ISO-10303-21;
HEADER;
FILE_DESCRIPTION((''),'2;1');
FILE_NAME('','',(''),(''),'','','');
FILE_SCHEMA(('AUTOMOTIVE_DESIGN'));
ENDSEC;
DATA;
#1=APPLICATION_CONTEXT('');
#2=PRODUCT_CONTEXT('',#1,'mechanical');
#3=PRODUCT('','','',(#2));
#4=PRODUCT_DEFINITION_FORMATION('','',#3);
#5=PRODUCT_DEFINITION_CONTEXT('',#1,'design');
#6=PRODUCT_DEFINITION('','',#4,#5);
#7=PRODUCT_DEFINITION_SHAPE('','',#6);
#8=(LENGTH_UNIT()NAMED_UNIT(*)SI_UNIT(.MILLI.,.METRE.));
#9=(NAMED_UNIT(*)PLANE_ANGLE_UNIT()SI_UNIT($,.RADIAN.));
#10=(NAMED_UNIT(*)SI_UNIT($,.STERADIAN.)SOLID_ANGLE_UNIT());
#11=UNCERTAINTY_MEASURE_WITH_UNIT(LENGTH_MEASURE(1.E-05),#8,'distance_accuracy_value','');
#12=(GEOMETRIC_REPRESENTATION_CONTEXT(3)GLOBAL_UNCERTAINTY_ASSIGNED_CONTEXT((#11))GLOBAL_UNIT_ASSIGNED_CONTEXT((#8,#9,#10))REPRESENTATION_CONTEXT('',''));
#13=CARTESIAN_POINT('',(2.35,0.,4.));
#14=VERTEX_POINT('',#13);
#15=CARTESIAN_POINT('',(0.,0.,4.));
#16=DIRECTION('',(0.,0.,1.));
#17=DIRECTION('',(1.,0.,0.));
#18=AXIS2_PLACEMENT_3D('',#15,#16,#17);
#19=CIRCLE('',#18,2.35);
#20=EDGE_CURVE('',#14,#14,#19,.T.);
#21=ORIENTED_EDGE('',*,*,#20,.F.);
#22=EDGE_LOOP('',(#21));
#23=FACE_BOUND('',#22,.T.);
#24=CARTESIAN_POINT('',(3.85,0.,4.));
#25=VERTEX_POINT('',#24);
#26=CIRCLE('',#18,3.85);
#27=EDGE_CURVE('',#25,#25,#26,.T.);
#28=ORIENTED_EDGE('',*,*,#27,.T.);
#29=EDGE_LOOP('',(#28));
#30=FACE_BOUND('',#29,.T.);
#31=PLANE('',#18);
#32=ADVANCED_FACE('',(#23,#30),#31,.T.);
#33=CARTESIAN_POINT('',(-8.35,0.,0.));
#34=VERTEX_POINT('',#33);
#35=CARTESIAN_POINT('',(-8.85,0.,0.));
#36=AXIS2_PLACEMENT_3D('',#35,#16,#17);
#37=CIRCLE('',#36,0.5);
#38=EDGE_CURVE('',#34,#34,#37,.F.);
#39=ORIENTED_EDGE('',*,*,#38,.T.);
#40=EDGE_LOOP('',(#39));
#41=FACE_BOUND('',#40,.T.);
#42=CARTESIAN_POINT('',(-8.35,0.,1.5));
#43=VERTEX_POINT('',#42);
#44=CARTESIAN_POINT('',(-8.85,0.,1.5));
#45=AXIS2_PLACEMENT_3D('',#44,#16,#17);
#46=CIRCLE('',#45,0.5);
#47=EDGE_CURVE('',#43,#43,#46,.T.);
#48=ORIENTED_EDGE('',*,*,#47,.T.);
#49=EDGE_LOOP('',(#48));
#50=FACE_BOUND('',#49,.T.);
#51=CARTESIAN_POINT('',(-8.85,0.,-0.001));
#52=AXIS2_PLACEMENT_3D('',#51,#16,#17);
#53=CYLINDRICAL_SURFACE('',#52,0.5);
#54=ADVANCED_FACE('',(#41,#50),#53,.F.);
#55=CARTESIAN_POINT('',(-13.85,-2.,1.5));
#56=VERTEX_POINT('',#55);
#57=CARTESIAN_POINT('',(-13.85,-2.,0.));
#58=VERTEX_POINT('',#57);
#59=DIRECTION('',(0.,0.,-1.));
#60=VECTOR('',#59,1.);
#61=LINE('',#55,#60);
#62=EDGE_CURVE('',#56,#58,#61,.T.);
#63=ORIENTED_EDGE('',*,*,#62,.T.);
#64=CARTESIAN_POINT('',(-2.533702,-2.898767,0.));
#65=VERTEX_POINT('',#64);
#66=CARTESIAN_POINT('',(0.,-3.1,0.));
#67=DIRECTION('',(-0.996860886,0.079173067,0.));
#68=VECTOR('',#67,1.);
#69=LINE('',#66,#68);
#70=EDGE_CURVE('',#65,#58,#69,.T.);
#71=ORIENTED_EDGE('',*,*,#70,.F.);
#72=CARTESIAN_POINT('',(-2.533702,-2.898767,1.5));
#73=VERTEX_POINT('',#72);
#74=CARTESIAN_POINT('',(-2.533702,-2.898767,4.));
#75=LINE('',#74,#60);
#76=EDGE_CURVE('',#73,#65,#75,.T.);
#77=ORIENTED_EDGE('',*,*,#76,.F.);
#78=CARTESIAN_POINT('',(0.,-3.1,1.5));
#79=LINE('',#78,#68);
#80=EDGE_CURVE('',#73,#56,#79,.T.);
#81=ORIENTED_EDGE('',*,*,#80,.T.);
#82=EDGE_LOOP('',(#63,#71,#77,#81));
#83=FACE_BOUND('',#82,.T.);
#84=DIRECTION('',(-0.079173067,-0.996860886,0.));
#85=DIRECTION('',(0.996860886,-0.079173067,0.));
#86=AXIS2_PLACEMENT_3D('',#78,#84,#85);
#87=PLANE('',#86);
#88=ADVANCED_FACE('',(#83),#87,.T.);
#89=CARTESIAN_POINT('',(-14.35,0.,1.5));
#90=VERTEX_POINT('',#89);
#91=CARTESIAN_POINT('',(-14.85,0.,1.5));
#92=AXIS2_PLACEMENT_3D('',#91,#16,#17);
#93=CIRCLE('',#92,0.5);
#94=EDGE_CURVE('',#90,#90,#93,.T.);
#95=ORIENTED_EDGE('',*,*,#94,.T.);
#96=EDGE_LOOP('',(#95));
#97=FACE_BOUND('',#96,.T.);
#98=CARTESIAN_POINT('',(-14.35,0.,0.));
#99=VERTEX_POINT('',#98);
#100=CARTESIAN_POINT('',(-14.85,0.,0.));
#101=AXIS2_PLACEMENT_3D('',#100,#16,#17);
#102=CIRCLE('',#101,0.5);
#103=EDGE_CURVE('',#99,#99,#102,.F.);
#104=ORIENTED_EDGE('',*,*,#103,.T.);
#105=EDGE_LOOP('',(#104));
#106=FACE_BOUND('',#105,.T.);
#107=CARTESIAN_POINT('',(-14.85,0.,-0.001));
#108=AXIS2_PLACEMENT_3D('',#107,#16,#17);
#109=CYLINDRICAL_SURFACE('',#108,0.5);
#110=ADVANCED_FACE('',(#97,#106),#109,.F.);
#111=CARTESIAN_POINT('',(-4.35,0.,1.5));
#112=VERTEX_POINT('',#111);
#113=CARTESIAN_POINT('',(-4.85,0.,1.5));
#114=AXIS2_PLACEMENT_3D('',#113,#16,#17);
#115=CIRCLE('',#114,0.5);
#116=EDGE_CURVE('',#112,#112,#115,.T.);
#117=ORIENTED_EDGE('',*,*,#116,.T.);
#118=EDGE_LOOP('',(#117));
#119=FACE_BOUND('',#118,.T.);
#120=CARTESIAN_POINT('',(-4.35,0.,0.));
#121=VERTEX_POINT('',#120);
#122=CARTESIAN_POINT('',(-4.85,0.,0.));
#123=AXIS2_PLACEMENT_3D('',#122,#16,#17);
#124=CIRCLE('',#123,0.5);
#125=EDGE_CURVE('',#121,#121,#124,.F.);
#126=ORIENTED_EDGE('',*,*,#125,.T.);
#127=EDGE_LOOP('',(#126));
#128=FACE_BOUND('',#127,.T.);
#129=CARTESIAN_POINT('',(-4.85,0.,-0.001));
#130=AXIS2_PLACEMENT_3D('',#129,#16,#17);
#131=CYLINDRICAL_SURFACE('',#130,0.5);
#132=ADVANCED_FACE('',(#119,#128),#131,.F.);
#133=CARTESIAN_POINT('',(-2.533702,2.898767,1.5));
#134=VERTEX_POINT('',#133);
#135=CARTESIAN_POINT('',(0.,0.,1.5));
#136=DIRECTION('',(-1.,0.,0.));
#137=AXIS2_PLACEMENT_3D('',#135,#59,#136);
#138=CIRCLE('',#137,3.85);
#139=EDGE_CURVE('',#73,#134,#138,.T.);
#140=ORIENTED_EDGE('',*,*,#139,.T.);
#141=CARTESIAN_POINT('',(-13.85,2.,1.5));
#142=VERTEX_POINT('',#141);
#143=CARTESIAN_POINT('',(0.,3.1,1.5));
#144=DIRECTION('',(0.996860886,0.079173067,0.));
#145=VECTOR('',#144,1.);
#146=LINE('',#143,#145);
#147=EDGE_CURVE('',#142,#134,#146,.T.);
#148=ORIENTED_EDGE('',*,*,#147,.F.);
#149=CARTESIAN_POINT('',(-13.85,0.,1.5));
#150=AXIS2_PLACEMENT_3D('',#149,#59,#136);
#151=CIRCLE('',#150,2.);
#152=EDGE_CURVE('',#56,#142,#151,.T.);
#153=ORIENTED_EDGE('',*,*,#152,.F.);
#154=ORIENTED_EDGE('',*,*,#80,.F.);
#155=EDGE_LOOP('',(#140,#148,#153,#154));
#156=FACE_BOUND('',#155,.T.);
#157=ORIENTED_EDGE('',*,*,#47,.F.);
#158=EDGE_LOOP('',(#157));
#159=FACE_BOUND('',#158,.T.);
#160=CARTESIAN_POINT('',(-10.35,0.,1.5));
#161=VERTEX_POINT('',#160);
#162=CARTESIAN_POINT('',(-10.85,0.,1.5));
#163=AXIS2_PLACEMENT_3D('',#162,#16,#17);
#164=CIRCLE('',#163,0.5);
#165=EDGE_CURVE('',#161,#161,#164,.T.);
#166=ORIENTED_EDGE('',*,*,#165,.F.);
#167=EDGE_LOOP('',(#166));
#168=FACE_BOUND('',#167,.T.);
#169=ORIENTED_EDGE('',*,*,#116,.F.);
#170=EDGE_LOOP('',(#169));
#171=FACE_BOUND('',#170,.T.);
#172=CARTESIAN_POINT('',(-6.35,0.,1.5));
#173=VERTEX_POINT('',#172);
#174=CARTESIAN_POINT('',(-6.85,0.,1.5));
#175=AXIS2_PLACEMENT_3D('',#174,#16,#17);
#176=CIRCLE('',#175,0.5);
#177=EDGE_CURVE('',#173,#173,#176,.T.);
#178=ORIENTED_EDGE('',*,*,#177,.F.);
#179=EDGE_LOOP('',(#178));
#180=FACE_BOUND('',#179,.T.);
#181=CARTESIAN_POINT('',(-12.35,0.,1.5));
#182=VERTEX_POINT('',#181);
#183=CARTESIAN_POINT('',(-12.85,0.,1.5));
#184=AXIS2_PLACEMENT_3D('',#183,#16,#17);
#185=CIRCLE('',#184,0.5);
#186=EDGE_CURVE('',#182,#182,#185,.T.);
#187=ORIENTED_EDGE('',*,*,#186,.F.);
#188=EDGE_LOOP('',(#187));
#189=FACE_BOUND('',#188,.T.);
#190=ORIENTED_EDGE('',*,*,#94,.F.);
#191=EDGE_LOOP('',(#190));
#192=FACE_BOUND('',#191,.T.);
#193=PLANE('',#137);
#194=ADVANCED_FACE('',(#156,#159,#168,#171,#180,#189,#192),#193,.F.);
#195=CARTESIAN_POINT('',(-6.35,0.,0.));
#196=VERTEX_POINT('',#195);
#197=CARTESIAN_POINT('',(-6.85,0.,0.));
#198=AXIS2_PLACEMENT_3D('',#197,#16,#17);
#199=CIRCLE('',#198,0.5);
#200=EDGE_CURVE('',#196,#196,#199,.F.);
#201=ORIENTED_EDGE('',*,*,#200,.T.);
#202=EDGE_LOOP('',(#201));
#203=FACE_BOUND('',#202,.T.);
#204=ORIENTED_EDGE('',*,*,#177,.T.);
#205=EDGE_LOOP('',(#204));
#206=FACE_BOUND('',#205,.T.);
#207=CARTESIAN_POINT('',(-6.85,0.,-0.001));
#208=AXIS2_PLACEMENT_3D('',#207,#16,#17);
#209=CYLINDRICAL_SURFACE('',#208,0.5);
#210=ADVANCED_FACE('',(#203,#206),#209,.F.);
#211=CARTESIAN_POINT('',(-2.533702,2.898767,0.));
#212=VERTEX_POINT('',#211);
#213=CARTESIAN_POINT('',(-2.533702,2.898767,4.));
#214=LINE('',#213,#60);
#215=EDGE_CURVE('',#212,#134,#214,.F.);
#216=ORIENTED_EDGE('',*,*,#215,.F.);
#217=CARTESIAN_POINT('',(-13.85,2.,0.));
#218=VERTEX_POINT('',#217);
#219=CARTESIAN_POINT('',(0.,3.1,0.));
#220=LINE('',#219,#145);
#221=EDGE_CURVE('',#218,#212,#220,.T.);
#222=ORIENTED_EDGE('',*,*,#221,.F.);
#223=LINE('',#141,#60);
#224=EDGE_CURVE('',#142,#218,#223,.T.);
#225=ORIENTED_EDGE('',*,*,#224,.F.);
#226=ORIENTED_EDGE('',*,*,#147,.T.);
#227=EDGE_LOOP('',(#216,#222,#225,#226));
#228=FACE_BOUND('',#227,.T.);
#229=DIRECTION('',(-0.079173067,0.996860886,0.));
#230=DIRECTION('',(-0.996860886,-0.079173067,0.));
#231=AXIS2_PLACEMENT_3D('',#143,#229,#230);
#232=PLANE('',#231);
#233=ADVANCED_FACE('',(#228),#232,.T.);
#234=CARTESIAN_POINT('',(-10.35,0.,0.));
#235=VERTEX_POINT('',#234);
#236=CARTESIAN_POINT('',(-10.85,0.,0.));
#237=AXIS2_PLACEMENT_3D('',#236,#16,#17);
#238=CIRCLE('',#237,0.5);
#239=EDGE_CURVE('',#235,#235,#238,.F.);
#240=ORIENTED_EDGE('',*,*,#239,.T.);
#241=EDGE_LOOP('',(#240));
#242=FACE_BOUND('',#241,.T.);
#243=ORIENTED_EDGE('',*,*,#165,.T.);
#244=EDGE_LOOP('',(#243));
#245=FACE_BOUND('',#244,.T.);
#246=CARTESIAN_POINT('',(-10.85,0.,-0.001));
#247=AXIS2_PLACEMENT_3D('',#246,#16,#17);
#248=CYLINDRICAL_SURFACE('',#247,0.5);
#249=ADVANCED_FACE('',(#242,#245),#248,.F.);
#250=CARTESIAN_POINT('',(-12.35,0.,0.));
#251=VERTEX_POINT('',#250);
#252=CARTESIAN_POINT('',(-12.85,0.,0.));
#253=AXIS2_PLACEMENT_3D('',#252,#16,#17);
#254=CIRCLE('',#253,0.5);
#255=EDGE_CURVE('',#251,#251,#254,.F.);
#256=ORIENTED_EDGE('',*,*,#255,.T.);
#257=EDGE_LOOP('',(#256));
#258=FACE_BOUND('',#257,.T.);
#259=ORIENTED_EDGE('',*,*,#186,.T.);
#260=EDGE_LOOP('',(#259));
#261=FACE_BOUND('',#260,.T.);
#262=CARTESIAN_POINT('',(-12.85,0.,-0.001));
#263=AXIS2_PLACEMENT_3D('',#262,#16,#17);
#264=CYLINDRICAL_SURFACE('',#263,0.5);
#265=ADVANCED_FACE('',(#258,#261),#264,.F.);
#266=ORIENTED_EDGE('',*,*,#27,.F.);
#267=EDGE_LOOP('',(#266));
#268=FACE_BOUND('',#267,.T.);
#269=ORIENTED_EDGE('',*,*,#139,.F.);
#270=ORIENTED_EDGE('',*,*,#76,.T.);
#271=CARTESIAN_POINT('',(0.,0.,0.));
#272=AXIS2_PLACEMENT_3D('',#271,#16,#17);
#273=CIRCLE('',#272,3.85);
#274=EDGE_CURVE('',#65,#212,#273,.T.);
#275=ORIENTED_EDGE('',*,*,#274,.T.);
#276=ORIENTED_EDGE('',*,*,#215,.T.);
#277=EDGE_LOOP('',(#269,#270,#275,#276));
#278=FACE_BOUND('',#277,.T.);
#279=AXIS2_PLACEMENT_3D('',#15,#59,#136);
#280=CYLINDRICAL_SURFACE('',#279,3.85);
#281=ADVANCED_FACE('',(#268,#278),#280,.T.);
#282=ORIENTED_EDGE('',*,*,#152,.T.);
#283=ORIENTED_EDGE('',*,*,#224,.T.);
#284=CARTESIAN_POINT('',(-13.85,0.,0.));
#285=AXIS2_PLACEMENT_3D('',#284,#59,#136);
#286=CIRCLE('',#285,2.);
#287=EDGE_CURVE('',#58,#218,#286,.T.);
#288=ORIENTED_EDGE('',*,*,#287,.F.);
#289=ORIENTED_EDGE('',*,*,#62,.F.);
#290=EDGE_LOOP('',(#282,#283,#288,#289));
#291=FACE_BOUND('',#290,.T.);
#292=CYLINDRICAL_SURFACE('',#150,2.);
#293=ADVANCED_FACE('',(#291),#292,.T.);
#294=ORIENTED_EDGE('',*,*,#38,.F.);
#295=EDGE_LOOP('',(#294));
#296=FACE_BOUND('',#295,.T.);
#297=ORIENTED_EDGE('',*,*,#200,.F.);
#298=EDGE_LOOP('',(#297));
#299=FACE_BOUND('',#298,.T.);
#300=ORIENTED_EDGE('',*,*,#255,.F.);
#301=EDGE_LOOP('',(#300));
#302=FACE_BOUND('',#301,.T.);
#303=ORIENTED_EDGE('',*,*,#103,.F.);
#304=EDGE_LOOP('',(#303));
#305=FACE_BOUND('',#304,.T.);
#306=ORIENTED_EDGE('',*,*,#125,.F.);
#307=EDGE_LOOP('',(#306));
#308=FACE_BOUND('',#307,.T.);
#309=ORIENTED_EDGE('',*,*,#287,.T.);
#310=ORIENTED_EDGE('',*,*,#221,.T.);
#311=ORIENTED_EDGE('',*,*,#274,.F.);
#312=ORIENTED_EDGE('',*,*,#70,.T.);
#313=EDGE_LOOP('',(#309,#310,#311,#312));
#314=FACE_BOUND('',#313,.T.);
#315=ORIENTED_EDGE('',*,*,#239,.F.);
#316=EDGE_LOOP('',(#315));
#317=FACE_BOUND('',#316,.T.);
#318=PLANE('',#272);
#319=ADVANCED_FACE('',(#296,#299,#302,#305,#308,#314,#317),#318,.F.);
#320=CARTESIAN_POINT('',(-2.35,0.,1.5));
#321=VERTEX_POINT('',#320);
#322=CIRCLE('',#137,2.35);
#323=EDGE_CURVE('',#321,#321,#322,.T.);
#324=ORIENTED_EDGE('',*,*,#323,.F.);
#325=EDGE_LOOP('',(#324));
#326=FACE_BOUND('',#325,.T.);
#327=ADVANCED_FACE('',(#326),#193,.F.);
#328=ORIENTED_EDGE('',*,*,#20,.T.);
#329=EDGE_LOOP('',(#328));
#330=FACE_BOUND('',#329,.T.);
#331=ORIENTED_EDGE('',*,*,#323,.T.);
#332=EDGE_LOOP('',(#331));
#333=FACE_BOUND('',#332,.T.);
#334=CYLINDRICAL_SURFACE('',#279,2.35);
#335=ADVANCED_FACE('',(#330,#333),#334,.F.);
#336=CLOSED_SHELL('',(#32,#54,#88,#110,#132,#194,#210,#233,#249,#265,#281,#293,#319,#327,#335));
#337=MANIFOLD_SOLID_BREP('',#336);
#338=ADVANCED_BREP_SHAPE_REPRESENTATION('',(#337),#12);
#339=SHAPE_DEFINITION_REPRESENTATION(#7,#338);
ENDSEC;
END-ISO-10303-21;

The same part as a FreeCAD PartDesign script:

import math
import FreeCAD as App
import Part
import Sketcher

doc = App.newDocument("Part")
body = doc.addObject("PartDesign::Body", "Body")

sketch1 = doc.addObject("Sketcher::SketchObject", "Sketch")
body.addObject(sketch1)
sketch1.AttachmentSupport = (doc.XY_Plane, [""])
sketch1.MapMode = "FlatFace"
sketch1.addGeometry([
    Part.Circle(App.Vector(0, 0, 0), App.Vector(0, 0, 1), 3.9),
    Part.Circle(App.Vector(0, 0, 0), App.Vector(0, 0, 1), 2.4),
], False)
sketch1.addConstraint([
    Sketcher.Constraint("Coincident", 0, 3, -1, 1),
    Sketcher.Constraint("Coincident", 1, 3, -1, 1),
    Sketcher.Constraint("Diameter", 0, 7.7),
    Sketcher.Constraint("Diameter", 1, 4.7),
])
pad1 = doc.addObject("PartDesign::Pad", "Pad")
body.addObject(pad1)
pad1.Profile = sketch1
pad1.Length = 4

sketch2 = doc.addObject("Sketcher::SketchObject", "Sketch001")
body.addObject(sketch2)
sketch2.AttachmentSupport = (doc.XY_Plane, [""])
sketch2.MapMode = "FlatFace"
sketch2.addGeometry([
    Part.LineSegment(App.Vector(-13.8, 2, 0), App.Vector(0, 3.1, 0)),
    Part.ArcOfCircle(Part.Circle(App.Vector(0, 0, 0), App.Vector(0, 0, 1), 3.1), math.radians(-90), math.radians(90)),
    Part.LineSegment(App.Vector(0, -3.1, 0), App.Vector(-13.8, -2, 0)),
    Part.ArcOfCircle(Part.Circle(App.Vector(-13.8, 0, 0), App.Vector(0, 0, 1), 2), math.radians(90), math.radians(270)),
], False)
sketch2.addConstraint([
    Sketcher.Constraint("Coincident", 0, 2, 1, 2),
    Sketcher.Constraint("Coincident", 1, 1, 2, 1),
    Sketcher.Constraint("Coincident", 2, 2, 3, 2),
    Sketcher.Constraint("Coincident", 3, 1, 0, 1),
    Sketcher.Constraint("Coincident", 1, 3, -1, 1),
    Sketcher.Constraint("Symmetric", 2, 2, 3, 1, -1),
    Sketcher.Constraint("PointOnObject", 0, 2, -2),
    Sketcher.Constraint("PointOnObject", 1, 1, -2),
    Sketcher.Constraint("Vertical", 3, 3, 2, 2),
    Sketcher.Constraint("Radius", 3, 2.0),
    Sketcher.Constraint("Radius", 1, 3.1),
    Sketcher.Constraint("DistanceX", 3, 3, -1, 1, 13.85),
])
pad2 = doc.addObject("PartDesign::Pad", "Pad001")
body.addObject(pad2)
pad2.Profile = sketch2
pad2.Length = 1.5

sketch3 = doc.addObject("Sketcher::SketchObject", "Sketch002")
body.addObject(sketch3)
sketch3.AttachmentSupport = (doc.XY_Plane, [""])
sketch3.MapMode = "FlatFace"
sketch3.AttachmentOffset = App.Placement(App.Vector(0, 0, 1.5), App.Rotation())
sketch3.addGeometry(Part.Circle(App.Vector(-4.8, 0, 0), App.Vector(0, 0, 1), 0.5), False)
sketch3.addConstraint([
    Sketcher.Constraint("PointOnObject", 0, 3, -1),
    Sketcher.Constraint("Diameter", 0, 1.0),
    Sketcher.Constraint("DistanceX", 0, 3, -1, 1, 4.85),
])
pocket1 = doc.addObject("PartDesign::Pocket", "Pocket")
body.addObject(pocket1)
pocket1.Profile = sketch3
pocket1.Type = "UpToFirst"

sketch4 = doc.addObject("Sketcher::SketchObject", "Sketch003")
body.addObject(sketch4)
sketch4.AttachmentSupport = (doc.XY_Plane, [""])
sketch4.MapMode = "FlatFace"
sketch4.AttachmentOffset = App.Placement(App.Vector(0, 0, 1.5), App.Rotation())
sketch4.addGeometry(Part.Circle(App.Vector(-6.8, 0, 0), App.Vector(0, 0, 1), 0.5), False)
sketch4.addConstraint([
    Sketcher.Constraint("PointOnObject", 0, 3, -1),
    Sketcher.Constraint("Diameter", 0, 1.0),
    Sketcher.Constraint("DistanceX", 0, 3, -1, 1, 6.85),
])
pocket2 = doc.addObject("PartDesign::Pocket", "Pocket001")
body.addObject(pocket2)
pocket2.Profile = sketch4
pocket2.Type = "UpToFirst"

sketch5 = doc.addObject("Sketcher::SketchObject", "Sketch004")
body.addObject(sketch5)
sketch5.AttachmentSupport = (doc.XY_Plane, [""])
sketch5.MapMode = "FlatFace"
sketch5.AttachmentOffset = App.Placement(App.Vector(0, 0, 1.5), App.Rotation())
sketch5.addGeometry(Part.Circle(App.Vector(-8.8, 0, 0), App.Vector(0, 0, 1), 0.5), False)
sketch5.addConstraint([
    Sketcher.Constraint("PointOnObject", 0, 3, -1),
    Sketcher.Constraint("Diameter", 0, 1.0),
    Sketcher.Constraint("DistanceX", 0, 3, -1, 1, 8.85),
])
pocket3 = doc.addObject("PartDesign::Pocket", "Pocket002")
body.addObject(pocket3)
pocket3.Profile = sketch5
pocket3.Type = "UpToFirst"

sketch6 = doc.addObject("Sketcher::SketchObject", "Sketch005")
body.addObject(sketch6)
sketch6.AttachmentSupport = (doc.XY_Plane, [""])
sketch6.MapMode = "FlatFace"
sketch6.AttachmentOffset = App.Placement(App.Vector(0, 0, 1.5), App.Rotation())
sketch6.addGeometry(Part.Circle(App.Vector(-10.8, 0, 0), App.Vector(0, 0, 1), 0.5), False)
sketch6.addConstraint([
    Sketcher.Constraint("PointOnObject", 0, 3, -1),
    Sketcher.Constraint("Diameter", 0, 1.0),
    Sketcher.Constraint("DistanceX", 0, 3, -1, 1, 10.85),
])
pocket4 = doc.addObject("PartDesign::Pocket", "Pocket003")
body.addObject(pocket4)
pocket4.Profile = sketch6
pocket4.Type = "UpToFirst"

sketch7 = doc.addObject("Sketcher::SketchObject", "Sketch006")
body.addObject(sketch7)
sketch7.AttachmentSupport = (doc.XY_Plane, [""])
sketch7.MapMode = "FlatFace"
sketch7.AttachmentOffset = App.Placement(App.Vector(0, 0, 1.5), App.Rotation())
sketch7.addGeometry(Part.Circle(App.Vector(-12.8, 0, 0), App.Vector(0, 0, 1), 0.5), False)
sketch7.addConstraint([
    Sketcher.Constraint("PointOnObject", 0, 3, -1),
    Sketcher.Constraint("Diameter", 0, 1.0),
    Sketcher.Constraint("DistanceX", 0, 3, -1, 1, 12.85),
])
pocket5 = doc.addObject("PartDesign::Pocket", "Pocket004")
body.addObject(pocket5)
pocket5.Profile = sketch7
pocket5.Type = "UpToFirst"

sketch8 = doc.addObject("Sketcher::SketchObject", "Sketch007")
body.addObject(sketch8)
sketch8.AttachmentSupport = (doc.XY_Plane, [""])
sketch8.MapMode = "FlatFace"
sketch8.AttachmentOffset = App.Placement(App.Vector(0, 0, 1.5), App.Rotation())
sketch8.addGeometry(Part.Circle(App.Vector(-14.8, 0, 0), App.Vector(0, 0, 1), 0.5), False)
sketch8.addConstraint([
    Sketcher.Constraint("PointOnObject", 0, 3, -1),
    Sketcher.Constraint("Diameter", 0, 1.0),
    Sketcher.Constraint("DistanceX", 0, 3, -1, 1, 14.85),
])
pocket6 = doc.addObject("PartDesign::Pocket", "Pocket005")
body.addObject(pocket6)
pocket6.Profile = sketch8
pocket6.Type = "UpToFirst"

doc.recompute()
